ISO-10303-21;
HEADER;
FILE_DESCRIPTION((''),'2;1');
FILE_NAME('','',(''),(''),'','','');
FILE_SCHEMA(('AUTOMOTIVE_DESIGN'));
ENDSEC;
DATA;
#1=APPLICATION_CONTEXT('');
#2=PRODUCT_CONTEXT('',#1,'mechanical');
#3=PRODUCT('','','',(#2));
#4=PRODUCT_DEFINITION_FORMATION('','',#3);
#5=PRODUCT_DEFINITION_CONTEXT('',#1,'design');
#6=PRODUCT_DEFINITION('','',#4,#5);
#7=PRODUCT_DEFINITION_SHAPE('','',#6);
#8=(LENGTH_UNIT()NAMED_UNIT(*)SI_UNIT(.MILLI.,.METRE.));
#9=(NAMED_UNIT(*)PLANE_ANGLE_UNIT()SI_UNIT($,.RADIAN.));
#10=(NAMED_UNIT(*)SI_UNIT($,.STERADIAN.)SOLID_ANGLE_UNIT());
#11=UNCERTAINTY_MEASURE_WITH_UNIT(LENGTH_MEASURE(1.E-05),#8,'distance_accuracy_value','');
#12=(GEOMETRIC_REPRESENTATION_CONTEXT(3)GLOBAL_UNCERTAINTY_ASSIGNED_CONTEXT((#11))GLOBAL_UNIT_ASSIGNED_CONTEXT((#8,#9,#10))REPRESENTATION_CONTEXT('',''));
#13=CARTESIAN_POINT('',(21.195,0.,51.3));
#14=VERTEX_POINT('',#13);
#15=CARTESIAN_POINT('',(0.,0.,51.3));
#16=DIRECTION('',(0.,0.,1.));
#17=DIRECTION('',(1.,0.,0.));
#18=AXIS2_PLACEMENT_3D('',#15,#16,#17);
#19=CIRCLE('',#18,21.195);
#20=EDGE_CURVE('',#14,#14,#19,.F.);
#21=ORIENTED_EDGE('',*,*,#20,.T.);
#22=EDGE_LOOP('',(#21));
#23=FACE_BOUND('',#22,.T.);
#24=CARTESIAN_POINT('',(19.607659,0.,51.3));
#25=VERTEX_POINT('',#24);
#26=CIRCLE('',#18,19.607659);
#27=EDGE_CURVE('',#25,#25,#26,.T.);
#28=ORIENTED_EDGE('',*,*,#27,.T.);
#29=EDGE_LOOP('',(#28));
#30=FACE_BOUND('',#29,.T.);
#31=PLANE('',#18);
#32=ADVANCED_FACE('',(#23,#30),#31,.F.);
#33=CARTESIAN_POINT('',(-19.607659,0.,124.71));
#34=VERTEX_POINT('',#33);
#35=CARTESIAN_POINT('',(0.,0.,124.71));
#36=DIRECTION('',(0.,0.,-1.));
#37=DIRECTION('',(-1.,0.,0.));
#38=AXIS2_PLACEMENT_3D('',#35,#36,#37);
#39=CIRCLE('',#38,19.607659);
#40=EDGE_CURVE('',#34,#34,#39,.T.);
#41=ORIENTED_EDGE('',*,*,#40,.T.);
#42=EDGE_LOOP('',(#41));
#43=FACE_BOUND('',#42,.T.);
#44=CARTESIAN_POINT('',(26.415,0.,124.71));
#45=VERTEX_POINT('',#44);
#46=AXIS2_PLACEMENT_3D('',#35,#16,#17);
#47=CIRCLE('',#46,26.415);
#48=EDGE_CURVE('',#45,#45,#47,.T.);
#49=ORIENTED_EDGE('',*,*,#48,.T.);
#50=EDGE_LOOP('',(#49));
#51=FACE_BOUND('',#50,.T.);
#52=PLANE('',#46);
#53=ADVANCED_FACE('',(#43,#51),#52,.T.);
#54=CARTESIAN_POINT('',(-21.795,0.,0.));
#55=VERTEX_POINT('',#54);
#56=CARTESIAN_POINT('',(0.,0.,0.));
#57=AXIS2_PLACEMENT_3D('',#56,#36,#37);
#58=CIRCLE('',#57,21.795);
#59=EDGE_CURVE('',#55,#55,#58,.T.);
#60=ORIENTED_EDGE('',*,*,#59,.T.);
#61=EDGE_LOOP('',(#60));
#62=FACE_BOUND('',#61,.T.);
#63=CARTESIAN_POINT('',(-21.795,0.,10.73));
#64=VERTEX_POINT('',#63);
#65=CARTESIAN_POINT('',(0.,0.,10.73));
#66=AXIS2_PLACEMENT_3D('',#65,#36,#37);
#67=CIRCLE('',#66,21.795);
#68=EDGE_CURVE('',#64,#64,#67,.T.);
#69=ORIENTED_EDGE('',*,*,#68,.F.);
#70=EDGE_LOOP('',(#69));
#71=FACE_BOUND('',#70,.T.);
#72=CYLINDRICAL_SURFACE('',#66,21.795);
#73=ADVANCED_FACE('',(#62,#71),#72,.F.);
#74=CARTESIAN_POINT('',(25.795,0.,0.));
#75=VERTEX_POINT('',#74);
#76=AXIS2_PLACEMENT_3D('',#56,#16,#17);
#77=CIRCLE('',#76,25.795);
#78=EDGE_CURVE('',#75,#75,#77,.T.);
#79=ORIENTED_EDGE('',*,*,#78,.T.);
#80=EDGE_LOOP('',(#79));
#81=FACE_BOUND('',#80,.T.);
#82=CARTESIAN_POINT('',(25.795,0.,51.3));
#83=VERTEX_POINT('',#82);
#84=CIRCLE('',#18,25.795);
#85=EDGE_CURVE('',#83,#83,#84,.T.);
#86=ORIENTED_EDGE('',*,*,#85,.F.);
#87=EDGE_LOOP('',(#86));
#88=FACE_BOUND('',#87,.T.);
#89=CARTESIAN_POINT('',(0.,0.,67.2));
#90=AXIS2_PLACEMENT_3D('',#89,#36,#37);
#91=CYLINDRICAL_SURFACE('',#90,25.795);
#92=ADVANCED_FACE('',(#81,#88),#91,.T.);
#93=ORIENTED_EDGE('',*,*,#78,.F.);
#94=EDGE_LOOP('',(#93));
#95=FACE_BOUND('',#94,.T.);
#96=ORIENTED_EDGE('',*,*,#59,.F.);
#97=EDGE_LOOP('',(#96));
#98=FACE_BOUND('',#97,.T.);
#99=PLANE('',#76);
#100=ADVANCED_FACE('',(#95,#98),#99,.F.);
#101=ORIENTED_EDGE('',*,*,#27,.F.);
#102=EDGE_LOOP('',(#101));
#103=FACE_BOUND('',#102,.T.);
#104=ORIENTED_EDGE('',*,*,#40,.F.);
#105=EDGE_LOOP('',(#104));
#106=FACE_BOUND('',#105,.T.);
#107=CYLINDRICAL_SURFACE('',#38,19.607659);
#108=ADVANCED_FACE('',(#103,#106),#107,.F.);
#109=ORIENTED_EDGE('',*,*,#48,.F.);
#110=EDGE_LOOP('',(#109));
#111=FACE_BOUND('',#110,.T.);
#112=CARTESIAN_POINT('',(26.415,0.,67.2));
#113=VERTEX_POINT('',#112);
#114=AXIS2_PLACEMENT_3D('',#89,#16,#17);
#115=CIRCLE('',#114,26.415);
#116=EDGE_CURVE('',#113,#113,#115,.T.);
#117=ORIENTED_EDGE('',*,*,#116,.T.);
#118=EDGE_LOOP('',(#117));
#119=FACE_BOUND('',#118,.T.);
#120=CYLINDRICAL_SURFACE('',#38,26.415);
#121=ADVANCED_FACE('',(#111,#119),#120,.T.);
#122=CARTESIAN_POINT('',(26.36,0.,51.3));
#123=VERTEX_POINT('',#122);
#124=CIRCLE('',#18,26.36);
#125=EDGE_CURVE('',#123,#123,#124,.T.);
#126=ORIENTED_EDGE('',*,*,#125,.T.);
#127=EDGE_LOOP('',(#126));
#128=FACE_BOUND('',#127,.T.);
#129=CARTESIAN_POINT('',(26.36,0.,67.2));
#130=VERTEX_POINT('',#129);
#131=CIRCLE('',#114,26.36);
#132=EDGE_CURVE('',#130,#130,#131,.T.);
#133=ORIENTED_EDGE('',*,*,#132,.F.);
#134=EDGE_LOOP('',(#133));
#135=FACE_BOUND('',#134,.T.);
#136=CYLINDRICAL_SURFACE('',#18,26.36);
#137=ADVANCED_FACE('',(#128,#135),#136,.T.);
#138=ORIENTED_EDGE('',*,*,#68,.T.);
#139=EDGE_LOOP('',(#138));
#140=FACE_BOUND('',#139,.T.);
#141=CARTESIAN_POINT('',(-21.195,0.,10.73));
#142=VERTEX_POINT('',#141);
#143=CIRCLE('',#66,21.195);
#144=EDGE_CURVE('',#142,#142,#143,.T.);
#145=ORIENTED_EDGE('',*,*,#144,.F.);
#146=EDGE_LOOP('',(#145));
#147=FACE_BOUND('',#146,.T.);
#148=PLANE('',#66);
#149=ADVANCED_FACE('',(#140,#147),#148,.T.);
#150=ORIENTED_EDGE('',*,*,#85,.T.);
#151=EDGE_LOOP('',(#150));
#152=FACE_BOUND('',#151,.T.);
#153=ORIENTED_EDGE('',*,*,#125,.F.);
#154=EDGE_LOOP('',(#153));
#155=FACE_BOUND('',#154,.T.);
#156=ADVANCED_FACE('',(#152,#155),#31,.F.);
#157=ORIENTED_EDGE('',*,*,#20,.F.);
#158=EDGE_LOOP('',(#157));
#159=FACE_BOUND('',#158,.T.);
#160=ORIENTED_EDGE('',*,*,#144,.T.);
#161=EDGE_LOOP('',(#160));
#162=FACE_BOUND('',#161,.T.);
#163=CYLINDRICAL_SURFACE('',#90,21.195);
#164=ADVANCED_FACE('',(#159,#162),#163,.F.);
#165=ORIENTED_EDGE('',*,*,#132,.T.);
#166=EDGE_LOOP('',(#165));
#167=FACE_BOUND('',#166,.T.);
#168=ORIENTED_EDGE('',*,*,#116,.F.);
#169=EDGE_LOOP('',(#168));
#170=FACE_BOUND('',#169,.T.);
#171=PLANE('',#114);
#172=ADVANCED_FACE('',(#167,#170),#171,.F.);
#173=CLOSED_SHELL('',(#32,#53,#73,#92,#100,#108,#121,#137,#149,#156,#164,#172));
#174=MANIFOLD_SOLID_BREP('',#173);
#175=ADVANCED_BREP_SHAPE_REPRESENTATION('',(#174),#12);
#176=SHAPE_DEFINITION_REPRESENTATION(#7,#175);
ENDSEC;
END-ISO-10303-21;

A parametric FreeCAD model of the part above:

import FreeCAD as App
import Part
import Sketcher
from FreeCAD import Vector

doc = App.newDocument("Part")
body = doc.addObject("PartDesign::Body", "Body")

# Sketch on XY plane
sketch1 = body.newObject("Sketcher::SketchObject", "Sketch")
sketch1.AttachmentSupport = (doc.getObject("XY_Plane"), [""])
sketch1.MapMode = "FlatFace"
sketch1.addGeometry(Part.Circle(Vector(0, 0, 0), Vector(0, 0, 1), 26), False)
sketch1.addGeometry(Part.Circle(Vector(0, 0, 0), Vector(0, 0, 1), 19), False)
sketch1.addConstraint(Sketcher.Constraint("Coincident", 0, 3, -1, 1))
sketch1.addConstraint(Sketcher.Constraint("Coincident", 1, 3, -1, 1))
sketch1.addConstraint(Sketcher.Constraint("Diameter", 0, 51.59))
sketch1.addConstraint(Sketcher.Constraint("Diameter", 1, 37.77))
pad1 = body.newObject("PartDesign::Pad", "Pad")
pad1.Profile = sketch1
pad1.Length = 67.2

# Sketch on XY plane
sketch2 = body.newObject("Sketcher::SketchObject", "Sketch001")
sketch2.AttachmentSupport = (doc.getObject("XY_Plane"), [""])
sketch2.MapMode = "FlatFace"
sketch2.addGeometry(Part.Circle(Vector(0, 0, 0), Vector(0, 0, 1), 22), False)
sketch2.addGeometry(Part.Circle(Vector(0, 0, 0), Vector(0, 0, 1), 21), False)
sketch2.addConstraint(Sketcher.Constraint("Coincident", 0, 3, -1, 1))
sketch2.addConstraint(Sketcher.Constraint("Coincident", 1, 3, -1, 1))
sketch2.addConstraint(Sketcher.Constraint("Diameter", 0, 43.59))
sketch2.addConstraint(Sketcher.Constraint("Diameter", 1, 42.39))
pocket1 = body.newObject("PartDesign::Pocket", "Pocket")
pocket1.Profile = sketch2
pocket1.Length = 10.73
pocket1.Reversed = True

# Sketch on XY plane
sketch3 = body.newObject("Sketcher::SketchObject", "Sketch002")
sketch3.AttachmentSupport = (doc.getObject("XY_Plane"), [""])
sketch3.MapMode = "FlatFace"
sketch3.addGeometry(Part.Circle(Vector(0, 0, 0), Vector(0, 0, 1), 21), False)
sketch3.addGeometry(Part.Circle(Vector(0, 0, 0), Vector(0, 0, 1), 19), False)
sketch3.addConstraint(Sketcher.Constraint("Coincident", 0, 3, -1, 1))
sketch3.addConstraint(Sketcher.Constraint("Coincident", 1, 3, -1, 1))
sketch3.addConstraint(Sketcher.Constraint("Diameter", 0, 42.39))
sketch3.addConstraint(Sketcher.Constraint("Diameter", 1, 37.77))
pocket2 = body.newObject("PartDesign::Pocket", "Pocket001")
pocket2.Profile = sketch3
pocket2.Type = "ThroughAll"
pocket2.Midplane = True

# Sketch on XY plane
sketch4 = body.newObject("Sketcher::SketchObject", "Sketch003")
sketch4.AttachmentSupport = (doc.getObject("XY_Plane"), [""])
sketch4.MapMode = "FlatFace"
sketch4.AttachmentOffset = App.Placement(Vector(0, 0, 67.2), App.Rotation())
sketch4.addGeometry(Part.Circle(Vector(0, 0, 0), Vector(0, 0, 1), 26), False)
sketch4.addConstraint(Sketcher.Constraint("Coincident", 0, 3, -1, 1))
sketch4.addConstraint(Sketcher.Constraint("Diameter", 0, 52.72))
pad2 = body.newObject("PartDesign::Pad", "Pad001")
pad2.Profile = sketch4
pad2.Length = 15.9
pad2.Reversed = True

# Sketch on XY plane
sketch5 = body.newObject("Sketcher::SketchObject", "Sketch004")
sketch5.AttachmentSupport = (doc.getObject("XY_Plane"), [""])
sketch5.MapMode = "FlatFace"
sketch5.AttachmentOffset = App.Placement(Vector(0, 0, 67.2), App.Rotation())
sketch5.addGeometry(Part.Circle(Vector(0, 0, 0), Vector(0, 0, 1), 26), False)
sketch5.addConstraint(Sketcher.Constraint("Coincident", 0, 3, -1, 1))
sketch5.addConstraint(Sketcher.Constraint("Diameter", 0, 52.83))
pad3 = body.newObject("PartDesign::Pad", "Pad002")
pad3.Profile = sketch5
pad3.Length = 57.51

# Sketch on XY plane
sketch6 = body.newObject("Sketcher::SketchObject", "Sketch005")
sketch6.AttachmentSupport = (doc.getObject("XY_Plane"), [""])
sketch6.MapMode = "FlatFace"
sketch6.AttachmentOffset = App.Placement(Vector(0, 0, 51.3), App.Rotation())
sketch6.addGeometry(Part.Circle(Vector(0, 0, 0), Vector(0, 0, 1), 20), False)
sketch6.addConstraint(Sketcher.Constraint("Coincident", 0, 3, -1, 1))
sketch6.addConstraint(Sketcher.Constraint("Diameter", 0, 39.215317))
pocket3 = body.newObject("PartDesign::Pocket", "Pocket002")
pocket3.Profile = sketch6
pocket3.Type = "ThroughAll"
pocket3.Midplane = True

doc.recompute()
